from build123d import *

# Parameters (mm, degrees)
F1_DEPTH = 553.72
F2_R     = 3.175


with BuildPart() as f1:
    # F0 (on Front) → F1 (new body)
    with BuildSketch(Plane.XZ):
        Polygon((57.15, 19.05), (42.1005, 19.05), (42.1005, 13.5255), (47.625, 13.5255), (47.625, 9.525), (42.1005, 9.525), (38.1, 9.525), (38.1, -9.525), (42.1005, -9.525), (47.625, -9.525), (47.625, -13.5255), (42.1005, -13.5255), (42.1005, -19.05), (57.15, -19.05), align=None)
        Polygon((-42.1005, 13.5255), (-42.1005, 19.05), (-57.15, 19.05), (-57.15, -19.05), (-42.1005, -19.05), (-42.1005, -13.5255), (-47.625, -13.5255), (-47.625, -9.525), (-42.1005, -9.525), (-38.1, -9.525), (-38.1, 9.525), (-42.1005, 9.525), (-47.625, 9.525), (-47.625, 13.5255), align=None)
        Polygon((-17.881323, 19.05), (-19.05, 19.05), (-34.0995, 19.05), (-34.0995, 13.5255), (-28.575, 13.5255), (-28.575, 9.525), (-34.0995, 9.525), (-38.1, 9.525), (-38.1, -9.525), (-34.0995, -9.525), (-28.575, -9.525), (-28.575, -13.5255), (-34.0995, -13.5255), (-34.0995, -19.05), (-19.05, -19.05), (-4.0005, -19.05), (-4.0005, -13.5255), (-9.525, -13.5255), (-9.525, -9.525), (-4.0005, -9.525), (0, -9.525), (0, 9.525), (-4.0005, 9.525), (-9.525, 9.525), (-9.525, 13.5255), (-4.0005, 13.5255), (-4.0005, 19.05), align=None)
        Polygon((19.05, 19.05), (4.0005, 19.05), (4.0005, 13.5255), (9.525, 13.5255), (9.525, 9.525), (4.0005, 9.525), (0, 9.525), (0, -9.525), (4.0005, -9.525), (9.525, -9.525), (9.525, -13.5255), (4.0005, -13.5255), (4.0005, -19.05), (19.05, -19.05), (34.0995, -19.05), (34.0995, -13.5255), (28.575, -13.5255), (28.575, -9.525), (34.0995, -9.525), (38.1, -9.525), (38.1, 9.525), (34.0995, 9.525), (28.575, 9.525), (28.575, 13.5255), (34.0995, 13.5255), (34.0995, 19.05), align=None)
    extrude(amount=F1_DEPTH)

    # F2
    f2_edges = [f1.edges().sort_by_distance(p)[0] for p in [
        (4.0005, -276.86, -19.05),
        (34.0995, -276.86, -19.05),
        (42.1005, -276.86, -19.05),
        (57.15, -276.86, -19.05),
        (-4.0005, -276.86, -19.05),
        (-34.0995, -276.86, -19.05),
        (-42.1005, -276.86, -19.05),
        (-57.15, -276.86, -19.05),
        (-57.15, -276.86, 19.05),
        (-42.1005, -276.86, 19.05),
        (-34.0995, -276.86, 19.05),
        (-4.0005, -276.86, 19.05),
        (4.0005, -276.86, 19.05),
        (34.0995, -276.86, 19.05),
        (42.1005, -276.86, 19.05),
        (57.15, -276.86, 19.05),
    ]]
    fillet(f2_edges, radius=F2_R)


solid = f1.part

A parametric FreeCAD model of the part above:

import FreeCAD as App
import Part
import Sketcher

V = App.Vector
Q = App.Units.Quantity


def edges_at(feature, points):
    """Names of the edges that pass closest to the given points."""
    edges = feature.Shape.Edges
    near = lambda p: min(range(len(edges)), key=lambda i: edges[i].distToShape(Part.Vertex(*p))[0])
    return sorted({f"Edge{near(p) + 1}" for p in points})


def add_polygon(sketch, points):
    """Adds a closed chain of lines whose ends are joined by coincident constraints."""
    first, n = sketch.GeometryCount, len(points)
    for a, b in zip(points, points[1:] + points[:1]):
        sketch.addGeometry(Part.LineSegment(App.Vector(*a, 0), App.Vector(*b, 0)), False)
    for i in range(n):
        sketch.addConstraint(Sketcher.Constraint("Coincident", first + i, 2, first + (i + 1) % n, 1))

doc = App.newDocument("Part")
params = doc.addObject("Spreadsheet::Sheet", "Params")
for row, (alias, value) in enumerate([
    ("sketch1_height", "1.5 in"),
    ("sketch1_width", "0.75 in"),
    ("sketch1_width2", "1.185 in"),
    ("pad1_length", "21.8 in"),
    ("fillet_radius", "0.125 in"),
], start=1):
    params.set(f"A{row}", alias)
    params.set(f"B{row}", "=" + value)
    params.setAlias(f"B{row}", alias)

body = doc.addObject("PartDesign::Body", "Body")

# Sketch on XZ plane
sketch1 = body.newObject("Sketcher::SketchObject", "Sketch")
sketch1.AttachmentSupport = (doc.getObject("XZ_Plane"), [""])
sketch1.MapMode = "FlatFace"
add_polygon(sketch1, [(57.1, 19.1), (42.1, 19.1), (42.1, 13.5), (47.6, 13.5), (47.6, 9.5), (28.6, 9.5), (28.6, 13.5), (34.1, 13.5), (34.1, 19.1), (4, 19.1), (4, 13.5), (9.5, 13.5), (9.5, 9.5), (-9.5, 9.5), (-9.5, 13.5), (-4, 13.5), (-4, 19.1), (-34.1, 19.1), (-34.1, 13.5), (-28.6, 13.5), (-28.6, 9.5), (-47.6, 9.5), (-47.6, 13.5), (-42.1, 13.5), (-42.1, 19.1), (-57.1, 19.1), (-57.1, -19.1), (-42.1, -19.1), (-42.1, -13.5), (-47.6, -13.5), (-47.6, -9.5), (-28.6, -9.5), (-28.6, -13.5), (-34.1, -13.5), (-34.1, -19.1), (-4, -19.1), (-4, -13.5), (-9.5, -13.5), (-9.5, -9.5), (9.5, -9.5), (9.5, -13.5), (4, -13.5), (4, -19.1), (34.1, -19.1), (34.1, -13.5), (28.6, -13.5), (28.6, -9.5), (47.6, -9.5), (47.6, -13.5), (42.1, -13.5), (42.1, -19.1), (57.1, -19.1)])  # lines 0-51
sketch1.addConstraint(Sketcher.Constraint("Horizontal", 0))
sketch1.addConstraint(Sketcher.Constraint("Vertical", 1))
sketch1.addConstraint(Sketcher.Constraint("Horizontal", 2))
sketch1.addConstraint(Sketcher.Constraint("Vertical", 3))
sketch1.addConstraint(Sketcher.Constraint("Horizontal", 4))
sketch1.addConstraint(Sketcher.Constraint("Vertical", 5))
sketch1.addConstraint(Sketcher.Constraint("Horizontal", 6))
sketch1.addConstraint(Sketcher.Constraint("Vertical", 7))
sketch1.addConstraint(Sketcher.Constraint("Horizontal", 8))
sketch1.addConstraint(Sketcher.Constraint("Vertical", 9))
sketch1.addConstraint(Sketcher.Constraint("Horizontal", 10))
sketch1.addConstraint(Sketcher.Constraint("Vertical", 11))
sketch1.addConstraint(Sketcher.Constraint("Horizontal", 12))
sketch1.addConstraint(Sketcher.Constraint("Vertical", 13))
sketch1.addConstraint(Sketcher.Constraint("Horizontal", 14))
sketch1.addConstraint(Sketcher.Constraint("Vertical", 15))
sketch1.addConstraint(Sketcher.Constraint("Horizontal", 16))
sketch1.addConstraint(Sketcher.Constraint("Vertical", 17))
sketch1.addConstraint(Sketcher.Constraint("Horizontal", 18))
sketch1.addConstraint(Sketcher.Constraint("Vertical", 19))
sketch1.addConstraint(Sketcher.Constraint("Horizontal", 20))
sketch1.addConstraint(Sketcher.Constraint("Vertical", 21))
sketch1.addConstraint(Sketcher.Constraint("Horizontal", 22))
sketch1.addConstraint(Sketcher.Constraint("Vertical", 23))
sketch1.addConstraint(Sketcher.Constraint("Horizontal", 24))
sketch1.addConstraint(Sketcher.Constraint("Vertical", 25))
sketch1.addConstraint(Sketcher.Constraint("Horizontal", 26))
sketch1.addConstraint(Sketcher.Constraint("Vertical", 27))
sketch1.addConstraint(Sketcher.Constraint("Horizontal", 28))
sketch1.addConstraint(Sketcher.Constraint("Vertical", 29))
sketch1.addConstraint(Sketcher.Constraint("Horizontal", 30))
sketch1.addConstraint(Sketcher.Constraint("Vertical", 31))
sketch1.addConstraint(Sketcher.Constraint("Horizontal", 32))
sketch1.addConstraint(Sketcher.Constraint("Vertical", 33))
sketch1.addConstraint(Sketcher.Constraint("Horizontal", 34))
sketch1.addConstraint(Sketcher.Constraint("Vertical", 35))
sketch1.addConstraint(Sketcher.Constraint("Horizontal", 36))
sketch1.addConstraint(Sketcher.Constraint("Vertical", 37))
sketch1.addConstraint(Sketcher.Constraint("Horizontal", 38))
sketch1.addConstraint(Sketcher.Constraint("Vertical", 39))
sketch1.addConstraint(Sketcher.Constraint("Horizontal", 40))
sketch1.addConstraint(Sketcher.Constraint("Vertical", 41))
sketch1.addConstraint(Sketcher.Constraint("Horizontal", 42))
sketch1.addConstraint(Sketcher.Constraint("Vertical", 43))
sketch1.addConstraint(Sketcher.Constraint("Horizontal", 44))
sketch1.addConstraint(Sketcher.Constraint("Vertical", 45))
sketch1.addConstraint(Sketcher.Constraint("Horizontal", 46))
sketch1.addConstraint(Sketcher.Constraint("Vertical", 47))
sketch1.addConstraint(Sketcher.Constraint("Horizontal", 48))
sketch1.addConstraint(Sketcher.Constraint("Vertical", 49))
sketch1.addConstraint(Sketcher.Constraint("Horizontal", 50))
sketch1.addConstraint(Sketcher.Constraint("Vertical", 51))
sketch1.addConstraint(Sketcher.Constraint("Symmetric", 0, 2, 26, 2, -1, 1))
sketch1.addConstraint(Sketcher.Constraint("Symmetric", 2, 2, 28, 2, -1, 1))
sketch1.addConstraint(Sketcher.Constraint("Symmetric", 4, 2, 30, 2, -1, 1))
sketch1.addConstraint(Sketcher.Constraint("Symmetric", 6, 2, 32, 2, -1, 1))
sketch1.addConstraint(Sketcher.Constraint("Symmetric", 8, 2, 34, 2, -1, 1))
sketch1.addConstraint(Sketcher.Constraint("Symmetric", 10, 2, 36, 2, -1, 1))
sketch1.addConstraint(Sketcher.Constraint("Symmetric", 12, 2, 38, 2, -1, 1))
sketch1.addConstraint(Sketcher.Constraint("Symmetric", 14, 2, 40, 2, -1, 1))
sketch1.addConstraint(Sketcher.Constraint("Symmetric", 16, 2, 42, 2, -1, 1))
sketch1.addConstraint(Sketcher.Constraint("Symmetric", 18, 2, 44, 2, -1, 1))
sketch1.addConstraint(Sketcher.Constraint("Symmetric", 20, 2, 46, 2, -1, 1))
sketch1.addConstraint(Sketcher.Constraint("Symmetric", 22, 2, 48, 2, -1, 1))
sketch1.addConstraint(Sketcher.Constraint("Symmetric", 24, 2, 50, 2, -1, 1))
sketch1.addConstraint(Sketcher.Constraint("Symmetric", 10, 2, 13, 2, -2))
sketch1.addConstraint(Sketcher.Constraint("Symmetric", 8, 2, 15, 2, -2))
sketch1.addConstraint(Sketcher.Constraint("Symmetric", 6, 2, 17, 2, -2))
sketch1.addConstraint(Sketcher.Constraint("Symmetric", 4, 2, 19, 2, -2))
sketch1.addConstraint(Sketcher.Constraint("Symmetric", 2, 2, 21, 2, -2))
sketch1.addConstraint(Sketcher.Constraint("Symmetric", 0, 2, 23, 2, -2))
sketch1.addConstraint(Sketcher.Constraint("Horizontal", 2, 2, 5, 2))
sketch1.addConstraint(Sketcher.Constraint("Horizontal", 0, 2, 7, 2))
sketch1.addConstraint(Sketcher.Constraint("Horizontal", 6, 2, 9, 2))
sketch1.addConstraint(Sketcher.Constraint("Horizontal", 4, 2, 11, 2))
sketch1.addConstraint(Sketcher.Constraint("Equal", 2, 6))
sketch1.addConstraint(Sketcher.Constraint("Equal", 6, 10))
sketch1.addConstraint(Sketcher.Constraint("Equal", 4, 12))
sketch1.addConstraint(Sketcher.Constraint("Equal", 48, 1))
sketch1.addConstraint(Sketcher.Constraint("DistanceY", 25, 2, 25, 1, Q("1.5 in")))
sketch1.addConstraint(Sketcher.Constraint("DistanceX", 4, 2, 4, 1, Q("0.75 in")))
sketch1.addConstraint(Sketcher.Constraint("DistanceX", 8, 2, 0, 2, Q("1.5 in")))
sketch1.addConstraint(Sketcher.Constraint("DistanceX", 8, 2, 8, 1, Q("1.185 in")))
sketch1.addConstraint(Sketcher.Constraint("DistanceX", 24, 2, -1, 1, Q("2.25 in")))
sketch1.addConstraint(Sketcher.Constraint("DistanceY", 29, 2, 20, 2, Q("0.75 in")))
sketch1.setExpression("Constraints[131]", "Params.sketch1_height")
sketch1.setExpression("Constraints[132]", "Params.sketch1_width")
sketch1.setExpression("Constraints[134]", "Params.sketch1_width2")
pad1 = body.newObject("PartDesign::Pad", "Pad")
pad1.Profile = sketch1
pad1.setExpression("Length", "Params.pad1_length")
doc.recompute()

fillet = body.newObject("PartDesign::Fillet", "Fillet")
fillet.Base = (pad1, edges_at(pad1, [
    (4, -276.86, -19.05),
    (34.099, -276.86, -19.05),
    (42.1, -276.86, -19.05),
    (57.15, -276.86, -19.05),
    (-4, -276.86, -19.05),
    (-34.099, -276.86, -19.05),
    (-42.1, -276.86, -19.05),
    (-57.15, -276.86, -19.05),
    (-57.15, -276.86, 19.05),
    (-42.1, -276.86, 19.05),
    (-34.099, -276.86, 19.05),
    (-4, -276.86, 19.05),
    (4, -276.86, 19.05),
    (34.099, -276.86, 19.05),
    (42.1, -276.86, 19.05),
    (57.15, -276.86, 19.05),
]))
fillet.setExpression("Radius", "Params.fillet_radius")

doc.recompute()
